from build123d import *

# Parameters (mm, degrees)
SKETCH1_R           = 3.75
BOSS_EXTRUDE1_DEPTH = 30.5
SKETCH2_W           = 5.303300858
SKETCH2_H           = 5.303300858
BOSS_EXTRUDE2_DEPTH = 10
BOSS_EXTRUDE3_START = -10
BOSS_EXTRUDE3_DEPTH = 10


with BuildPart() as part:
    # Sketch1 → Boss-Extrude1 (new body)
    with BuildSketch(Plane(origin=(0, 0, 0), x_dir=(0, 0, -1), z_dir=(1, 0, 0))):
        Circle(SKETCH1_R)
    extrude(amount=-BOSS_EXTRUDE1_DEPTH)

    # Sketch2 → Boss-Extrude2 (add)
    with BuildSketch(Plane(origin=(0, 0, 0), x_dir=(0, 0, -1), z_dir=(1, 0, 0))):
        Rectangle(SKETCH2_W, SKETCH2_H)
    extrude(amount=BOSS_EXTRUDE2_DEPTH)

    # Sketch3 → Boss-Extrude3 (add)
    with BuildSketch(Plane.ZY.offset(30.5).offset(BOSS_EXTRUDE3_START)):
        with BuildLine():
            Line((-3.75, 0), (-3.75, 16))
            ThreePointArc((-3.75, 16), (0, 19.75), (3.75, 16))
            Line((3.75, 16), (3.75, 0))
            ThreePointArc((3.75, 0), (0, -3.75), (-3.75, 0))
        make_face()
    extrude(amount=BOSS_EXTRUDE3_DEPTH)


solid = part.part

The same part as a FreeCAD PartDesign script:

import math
import FreeCAD as App
import Part
import Sketcher
Q = App.Units.Quantity


def add_polygon(sketch, points):
    """Adds a closed chain of lines whose ends are joined by coincident constraints."""
    first, n = sketch.GeometryCount, len(points)
    for a, b in zip(points, points[1:] + points[:1]):
        sketch.addGeometry(Part.LineSegment(App.Vector(*a, 0), App.Vector(*b, 0)), False)
    for i in range(n):
        sketch.addConstraint(Sketcher.Constraint("Coincident", first + i, 2, first + (i + 1) % n, 1))

doc = App.newDocument("Part")
body = doc.addObject("PartDesign::Body", "Body")

# Sketch on YZ plane
sketch1 = body.newObject("Sketcher::SketchObject", "Sketch")
sketch1.AttachmentSupport = (doc.getObject("YZ_Plane"), [""])
sketch1.MapMode = "FlatFace"
sketch1.addGeometry(Part.Circle(App.Vector(0, 0, 0), App.Vector(0, 0, 1), 3.8), False)
sketch1.addConstraint([
    Sketcher.Constraint("Coincident", 0, 3, -1, 1),
    Sketcher.Constraint("Diameter", 0, Q("7.5 mm")),
])
pad1 = body.newObject("PartDesign::Pad", "Pad")
pad1.Profile = sketch1
pad1.Length = 30.5
pad1.Reversed = True

# Sketch on YZ plane
sketch2 = body.newObject("Sketcher::SketchObject", "Sketch001")
sketch2.AttachmentSupport = (doc.getObject("YZ_Plane"), [""])
sketch2.MapMode = "FlatFace"
add_polygon(sketch2, [(3, 3), (-3, 3), (-3, -3), (3, -3)])  # lines 0-3
sketch2.addConstraint([
    Sketcher.Constraint("Horizontal", 0),
    Sketcher.Constraint("Vertical", 1),
    Sketcher.Constraint("Horizontal", 2),
    Sketcher.Constraint("Vertical", 3),
    Sketcher.Constraint("Symmetric", 0, 2, 2, 2, -1, 1),
    Sketcher.Constraint("Equal", 2, 1),
    Sketcher.Constraint("DistanceX", 0, 2, 0, 1, Q("5.303301 mm")),
])
pad2 = body.newObject("PartDesign::Pad", "Pad001")
pad2.Profile = sketch2
pad2.Length = 10

# Sketch on YZ plane
sketch3 = body.newObject("Sketcher::SketchObject", "Sketch002")
sketch3.AttachmentSupport = (doc.getObject("YZ_Plane"), [""])
sketch3.MapMode = "FlatFace"
sketch3.AttachmentOffset = App.Placement(App.Vector(0, 0, -20.5), App.Rotation())
sketch3.addGeometry([
    Part.LineSegment(App.Vector(16, -3.8, 0), App.Vector(0, -3.8, 0)),
    Part.ArcOfCircle(Part.Circle(App.Vector(0, 0, 0), App.Vector(0, 0, 1), 3.8), math.radians(90), math.radians(270)),
    Part.LineSegment(App.Vector(0, 3.8, 0), App.Vector(16, 3.8, 0)),
    Part.ArcOfCircle(Part.Circle(App.Vector(16, 0, 0), App.Vector(0, 0, 1), 3.8), math.radians(-90), math.radians(90)),
], False)
sketch3.addConstraint([
    Sketcher.Constraint("Tangent", 0, 2, 1, 2),
    Sketcher.Constraint("Tangent", 1, 1, 2, 1),
    Sketcher.Constraint("Tangent", 2, 2, 3, 2),
    Sketcher.Constraint("Tangent", 3, 1, 0, 1),
    Sketcher.Constraint("Horizontal", 0),
    Sketcher.Constraint("Horizontal", 2),
    Sketcher.Constraint("Coincident", 1, 3, -1, 1),
    Sketcher.Constraint("DistanceX", 0, 2, 0, 1, Q("16 mm")),
    Sketcher.Constraint("Radius", 1, Q("3.75 mm")),
])
pad3 = body.newObject("PartDesign::Pad", "Pad002")
pad3.Profile = sketch3
pad3.Length = 10
pad3.Reversed = True

doc.recompute()
